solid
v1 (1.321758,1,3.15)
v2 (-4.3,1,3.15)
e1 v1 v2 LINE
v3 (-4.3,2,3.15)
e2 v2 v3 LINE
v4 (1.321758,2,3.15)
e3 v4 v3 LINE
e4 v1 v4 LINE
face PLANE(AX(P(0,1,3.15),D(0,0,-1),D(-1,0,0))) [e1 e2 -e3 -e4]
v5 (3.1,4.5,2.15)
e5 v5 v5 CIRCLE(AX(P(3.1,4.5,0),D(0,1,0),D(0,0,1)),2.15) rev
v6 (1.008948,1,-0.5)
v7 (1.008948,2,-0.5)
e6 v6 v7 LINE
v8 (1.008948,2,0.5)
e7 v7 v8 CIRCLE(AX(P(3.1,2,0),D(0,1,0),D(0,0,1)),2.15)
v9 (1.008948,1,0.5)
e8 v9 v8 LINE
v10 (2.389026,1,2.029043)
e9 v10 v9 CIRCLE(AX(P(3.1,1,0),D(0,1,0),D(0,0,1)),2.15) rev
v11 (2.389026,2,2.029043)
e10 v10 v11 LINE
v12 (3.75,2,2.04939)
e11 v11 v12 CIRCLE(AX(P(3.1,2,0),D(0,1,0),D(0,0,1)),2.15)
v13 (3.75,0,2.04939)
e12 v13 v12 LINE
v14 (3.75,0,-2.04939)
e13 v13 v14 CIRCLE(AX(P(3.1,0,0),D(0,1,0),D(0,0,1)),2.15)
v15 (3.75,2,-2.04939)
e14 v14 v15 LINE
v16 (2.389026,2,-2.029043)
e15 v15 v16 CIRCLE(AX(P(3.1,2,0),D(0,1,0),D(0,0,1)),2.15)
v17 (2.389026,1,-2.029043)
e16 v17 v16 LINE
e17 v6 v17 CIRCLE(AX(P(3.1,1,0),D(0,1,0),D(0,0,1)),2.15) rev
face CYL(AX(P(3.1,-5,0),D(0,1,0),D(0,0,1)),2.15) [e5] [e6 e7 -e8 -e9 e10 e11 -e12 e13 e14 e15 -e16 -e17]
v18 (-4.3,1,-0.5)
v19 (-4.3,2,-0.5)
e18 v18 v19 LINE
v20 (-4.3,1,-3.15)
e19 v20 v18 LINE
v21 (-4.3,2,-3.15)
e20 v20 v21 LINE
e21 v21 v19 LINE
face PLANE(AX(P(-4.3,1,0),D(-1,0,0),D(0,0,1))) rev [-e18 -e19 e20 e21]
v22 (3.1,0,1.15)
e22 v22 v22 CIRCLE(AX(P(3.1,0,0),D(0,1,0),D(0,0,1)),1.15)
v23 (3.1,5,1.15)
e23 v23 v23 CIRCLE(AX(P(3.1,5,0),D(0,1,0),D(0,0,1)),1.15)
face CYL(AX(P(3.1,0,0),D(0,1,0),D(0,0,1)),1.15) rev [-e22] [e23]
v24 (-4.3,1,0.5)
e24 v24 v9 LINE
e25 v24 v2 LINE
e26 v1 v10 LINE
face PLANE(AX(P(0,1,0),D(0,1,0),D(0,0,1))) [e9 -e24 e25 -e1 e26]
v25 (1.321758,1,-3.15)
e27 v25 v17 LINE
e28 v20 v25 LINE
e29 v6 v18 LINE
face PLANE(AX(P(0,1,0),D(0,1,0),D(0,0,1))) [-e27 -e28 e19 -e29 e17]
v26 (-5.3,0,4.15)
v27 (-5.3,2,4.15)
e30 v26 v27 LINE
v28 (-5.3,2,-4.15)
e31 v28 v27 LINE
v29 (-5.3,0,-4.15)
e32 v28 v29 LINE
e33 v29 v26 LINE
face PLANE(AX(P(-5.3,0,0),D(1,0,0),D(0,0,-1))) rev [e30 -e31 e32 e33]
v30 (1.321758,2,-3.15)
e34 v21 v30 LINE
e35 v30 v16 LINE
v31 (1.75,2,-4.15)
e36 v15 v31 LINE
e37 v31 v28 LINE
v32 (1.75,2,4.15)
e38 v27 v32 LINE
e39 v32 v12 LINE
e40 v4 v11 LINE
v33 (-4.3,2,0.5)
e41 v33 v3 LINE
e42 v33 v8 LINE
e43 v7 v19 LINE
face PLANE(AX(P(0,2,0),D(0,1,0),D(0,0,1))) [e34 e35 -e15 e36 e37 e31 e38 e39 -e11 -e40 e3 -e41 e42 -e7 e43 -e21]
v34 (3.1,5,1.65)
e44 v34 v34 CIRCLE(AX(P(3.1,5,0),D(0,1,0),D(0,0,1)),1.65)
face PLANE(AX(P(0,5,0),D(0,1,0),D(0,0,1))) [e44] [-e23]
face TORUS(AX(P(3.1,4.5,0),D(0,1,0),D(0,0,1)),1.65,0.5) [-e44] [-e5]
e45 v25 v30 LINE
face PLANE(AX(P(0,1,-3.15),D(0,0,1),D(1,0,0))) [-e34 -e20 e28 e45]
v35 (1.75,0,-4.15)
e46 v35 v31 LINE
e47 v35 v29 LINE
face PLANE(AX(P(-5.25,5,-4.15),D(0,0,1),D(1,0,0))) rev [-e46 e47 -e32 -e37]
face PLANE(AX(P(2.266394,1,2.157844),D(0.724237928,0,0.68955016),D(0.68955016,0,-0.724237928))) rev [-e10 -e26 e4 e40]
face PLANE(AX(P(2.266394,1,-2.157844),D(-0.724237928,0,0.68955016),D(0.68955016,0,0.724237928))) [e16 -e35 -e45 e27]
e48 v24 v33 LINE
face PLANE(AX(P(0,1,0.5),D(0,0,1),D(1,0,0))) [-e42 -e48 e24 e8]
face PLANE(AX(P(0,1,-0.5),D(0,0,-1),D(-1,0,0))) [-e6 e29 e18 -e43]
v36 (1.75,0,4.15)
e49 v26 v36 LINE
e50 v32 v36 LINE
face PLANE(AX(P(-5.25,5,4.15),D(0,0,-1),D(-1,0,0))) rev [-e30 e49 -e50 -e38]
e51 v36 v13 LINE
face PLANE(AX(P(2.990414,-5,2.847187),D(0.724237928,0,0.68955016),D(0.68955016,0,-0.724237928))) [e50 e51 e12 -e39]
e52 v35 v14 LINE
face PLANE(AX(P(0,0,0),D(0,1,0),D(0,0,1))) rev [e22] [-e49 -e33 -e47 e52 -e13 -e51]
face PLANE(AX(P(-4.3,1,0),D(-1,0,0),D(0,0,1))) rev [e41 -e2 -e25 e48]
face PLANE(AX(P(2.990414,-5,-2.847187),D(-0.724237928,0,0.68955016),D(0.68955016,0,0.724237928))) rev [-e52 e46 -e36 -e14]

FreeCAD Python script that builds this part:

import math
import FreeCAD as App
import Part
import Sketcher
Q = App.Units.Quantity


def edges_at(feature, points):
    """Names of the edges that pass closest to the given points."""
    edges = feature.Shape.Edges
    near = lambda p: min(range(len(edges)), key=lambda i: edges[i].distToShape(Part.Vertex(*p))[0])
    return sorted({f"Edge{near(p) + 1}" for p in points})


def add_polygon(sketch, points):
    """Adds a closed chain of lines whose ends are joined by coincident constraints."""
    first, n = sketch.GeometryCount, len(points)
    for a, b in zip(points, points[1:] + points[:1]):
        sketch.addGeometry(Part.LineSegment(App.Vector(*a, 0), App.Vector(*b, 0)), False)
    for i in range(n):
        sketch.addConstraint(Sketcher.Constraint("Coincident", first + i, 2, first + (i + 1) % n, 1))

doc = App.newDocument("Part")
body = doc.addObject("PartDesign::Body", "Body")

# Sketch on XZ plane
sketch1 = doc.addObject("Sketcher::SketchObject", "Sketch")
body.addObject(sketch1)
sketch1.AttachmentSupport = (doc.XZ_Plane, [""])
sketch1.MapMode = "FlatFace"
add_polygon(sketch1, [(-5, -4), (-5, 4), (5, 4), (5, -4)])  # lines 0-3
sketch1.addConstraint(Sketcher.Constraint("Vertical", 0))
sketch1.addConstraint(Sketcher.Constraint("Horizontal", 1))
sketch1.addConstraint(Sketcher.Constraint("Vertical", 2))
sketch1.addConstraint(Sketcher.Constraint("Horizontal", 3))
sketch1.addConstraint(Sketcher.Constraint("Symmetric", 0, 2, 2, 2, -1, 1))
sketch1.addConstraint(Sketcher.Constraint("DistanceX", 1, 1, 1, 2, Q("10.5 mm")))
sketch1.addConstraint(Sketcher.Constraint("DistanceY", 0, 1, 0, 2, Q("8.3 mm")))
pad1 = doc.addObject("PartDesign::Pad", "Pad")
body.addObject(pad1)
pad1.Profile = sketch1
pad1.Length = 5
pad1.Reversed = True

# Sketch on XZ plane
sketch2 = doc.addObject("Sketcher::SketchObject", "Sketch001")
body.addObject(sketch2)
sketch2.AttachmentSupport = (doc.XZ_Plane, [""])
sketch2.MapMode = "FlatFace"
sketch2.AttachmentOffset = App.Placement(App.Vector(0, 0, -5), App.Rotation())
sketch2.addGeometry(Part.LineSegment(App.Vector(1.8, -4.2, 0), App.Vector(3.8, -2, 0)), False)
sketch2.addGeometry(Part.ArcOfCircle(Part.Circle(App.Vector(3.1, 0, 0), App.Vector(0, 0, 1), 2.1), math.radians(-72), math.radians(0)), False)
sketch2.addGeometry(Part.LineSegment(App.Vector(5.2, 0, 0), App.Vector(5.2, -4.2, 0)), False)
sketch2.addGeometry(Part.LineSegment(App.Vector(5.2, -4.2, 0), App.Vector(1.8, -4.2, 0)), False)
sketch2.addGeometry(Part.LineSegment(App.Vector(3.8, 2, 0), App.Vector(1.8, 4.2, 0)), False)
sketch2.addGeometry(Part.LineSegment(App.Vector(1.8, 4.2, 0), App.Vector(5.2, 4.2, 0)), False)
sketch2.addGeometry(Part.LineSegment(App.Vector(5.2, 4.2, 0), App.Vector(5.2, 0, 0)), False)
sketch2.addGeometry(Part.ArcOfCircle(Part.Circle(App.Vector(3.1, 0, 0), App.Vector(0, 0, 1), 2.1), math.radians(0), math.radians(72)), False)
sketch2.addConstraint(Sketcher.Constraint("Coincident", 0, 2, 1, 1))
sketch2.addConstraint(Sketcher.Constraint("Tangent", 1, 2, 2, 1))
sketch2.addConstraint(Sketcher.Constraint("Coincident", 2, 2, 3, 1))
sketch2.addConstraint(Sketcher.Constraint("Coincident", 3, 2, 0, 1))
sketch2.addConstraint(Sketcher.Constraint("Coincident", 4, 2, 5, 1))
sketch2.addConstraint(Sketcher.Constraint("Coincident", 5, 2, 6, 1))
sketch2.addConstraint(Sketcher.Constraint("Tangent", 6, 2, 7, 1))
sketch2.addConstraint(Sketcher.Constraint("Coincident", 7, 2, 4, 1))
sketch2.addConstraint(Sketcher.Constraint("Vertical", 2))
sketch2.addConstraint(Sketcher.Constraint("Horizontal", 3))
sketch2.addConstraint(Sketcher.Constraint("Horizontal", 5))
sketch2.addConstraint(Sketcher.Constraint("Vertical", 6))
sketch2.addConstraint(Sketcher.Constraint("Coincident", 7, 3, 1, 3))
sketch2.addConstraint(Sketcher.Constraint("Equal", 1, 7))
sketch2.addConstraint(Sketcher.Constraint("Symmetric", 3, 2, 4, 2, -1))
sketch2.addConstraint(Sketcher.Constraint("Symmetric", 0, 2, 7, 2, -1))
sketch2.addConstraint(Sketcher.Constraint("Radius", 1, Q("2.15 mm")))
sketch2.addConstraint(Sketcher.Constraint("DistanceX", 3, 2, 3, 1, Q("3.5 mm")))
sketch2.addConstraint(Sketcher.Constraint("DistanceX", 3, 2, 0, 2, Q("2 mm")))
sketch2.addConstraint(Sketcher.Constraint("DistanceY", 2, 2, 2, 1, Q("4.15 mm")))
sketch2.addConstraint(Sketcher.Constraint("DistanceX", -1, 1, 1, 3, Q("3.1 mm")))
pocket1 = doc.addObject("PartDesign::Pocket", "Pocket")
body.addObject(pocket1)
pocket1.Profile = sketch2
pocket1.Length = 10
pocket1.Reversed = True

# Sketch on YZ plane
sketch3 = doc.addObject("Sketcher::SketchObject", "Sketch002")
body.addObject(sketch3)
sketch3.AttachmentSupport = (doc.YZ_Plane, [""])
sketch3.MapMode = "FlatFace"
sketch3.AttachmentOffset = App.Placement(App.Vector(0, 0, -5.25), App.Rotation())
add_polygon(sketch3, [(5, -4), (0, -4), (0, 4), (5, 4)])  # lines 0-3
sketch3.addConstraint(Sketcher.Constraint("Horizontal", 0))
sketch3.addConstraint(Sketcher.Constraint("Vertical", 1))
sketch3.addConstraint(Sketcher.Constraint("Horizontal", 2))
sketch3.addConstraint(Sketcher.Constraint("Vertical", 3))
sketch3.addConstraint(Sketcher.Constraint("Symmetric", 0, 2, 1, 2, -1, 1))
sketch3.addConstraint(Sketcher.Constraint("DistanceX", 0, 2, 0, 1, Q("5 mm")))
sketch3.addConstraint(Sketcher.Constraint("DistanceY", 1, 1, 1, 2, Q("8.3 mm")))
pad2 = doc.addObject("PartDesign::Pad", "Pad001")
body.addObject(pad2)
pad2.Profile = sketch3
pad2.Length = 0.05
pad2.Reversed = True

# Sketch on XZ plane
sketch4 = doc.addObject("Sketcher::SketchObject", "Sketch003")
body.addObject(sketch4)
sketch4.AttachmentSupport = (doc.XZ_Plane, [""])
sketch4.MapMode = "FlatFace"
sketch4.AttachmentOffset = App.Placement(App.Vector(0, 0, -5), App.Rotation())
sketch4.addGeometry(Part.ArcOfCircle(Part.Circle(App.Vector(3.1, 0, 0), App.Vector(0, 0, 1), 2.1), math.radians(72), math.radians(288)), False)
sketch4.addGeometry(Part.LineSegment(App.Vector(3.8, -2, 0), App.Vector(1.8, -4.2, 0)), False)
sketch4.addGeometry(Part.LineSegment(App.Vector(1.8, -4.2, 0), App.Vector(-5.3, -4.2, 0)), False)
sketch4.addGeometry(Part.LineSegment(App.Vector(-5.3, -4.2, 0), App.Vector(-5.3, 4.2, 0)), False)
sketch4.addGeometry(Part.LineSegment(App.Vector(-5.3, 4.2, 0), App.Vector(1.8, 4.2, 0)), False)
sketch4.addGeometry(Part.LineSegment(App.Vector(1.8, 4.2, 0), App.Vector(3.8, 2, 0)), False)
sketch4.addConstraint(Sketcher.Constraint("Coincident", 0, 2, 1, 1))
sketch4.addConstraint(Sketcher.Constraint("Coincident", 1, 2, 2, 1))
sketch4.addConstraint(Sketcher.Constraint("Coincident", 2, 2, 3, 1))
sketch4.addConstraint(Sketcher.Constraint("Coincident", 3, 2, 4, 1))
sketch4.addConstraint(Sketcher.Constraint("Coincident", 4, 2, 5, 1))
sketch4.addConstraint(Sketcher.Constraint("Coincident", 5, 2, 0, 1))
sketch4.addConstraint(Sketcher.Constraint("Horizontal", 2))
sketch4.addConstraint(Sketcher.Constraint("Vertical", 3))
sketch4.addConstraint(Sketcher.Constraint("Horizontal", 4))
sketch4.addConstraint(Sketcher.Constraint("Symmetric", 1, 2, 4, 2, -1))
sketch4.addConstraint(Sketcher.Constraint("Symmetric", 0, 2, 5, 2, -1))
sketch4.addConstraint(Sketcher.Constraint("Radius", 0, Q("2.15 mm")))
sketch4.addConstraint(Sketcher.Constraint("DistanceY", 3, 1, 3, 2, Q("8.3 mm")))
sketch4.addConstraint(Sketcher.Constraint("DistanceX", 1, 2, 0, 2, Q("2 mm")))
sketch4.addConstraint(Sketcher.Constraint("DistanceX", 2, 2, 2, 1, Q("7.05 mm")))
sketch4.addConstraint(Sketcher.Constraint("DistanceX", -1, 1, 0, 3, Q("3.1 mm")))
sketch4.addConstraint(Sketcher.Constraint("DistanceX", 2, 2, -1, 1, Q("5.3 mm")))
pocket2 = doc.addObject("PartDesign::Pocket", "Pocket001")
body.addObject(pocket2)
pocket2.Profile = sketch4
pocket2.Length = 3
pocket2.Reversed = True

# Sketch on XZ plane
sketch5 = doc.addObject("Sketcher::SketchObject", "Sketch004")
body.addObject(sketch5)
sketch5.AttachmentSupport = (doc.XZ_Plane, [""])
sketch5.MapMode = "FlatFace"
sketch5.AttachmentOffset = App.Placement(App.Vector(0, 0, -5), App.Rotation())
sketch5.addGeometry(Part.Circle(App.Vector(3.1, 0, 0), App.Vector(0, 0, 1), 1.1), False)
sketch5.addConstraint(Sketcher.Constraint("PointOnObject", 0, 3, -1))
sketch5.addConstraint(Sketcher.Constraint("Diameter", 0, Q("2.3 mm")))
sketch5.addConstraint(Sketcher.Constraint("DistanceX", -1, 1, 0, 3, Q("3.1 mm")))
pocket3 = doc.addObject("PartDesign::Pocket", "Pocket002")
body.addObject(pocket3)
pocket3.Profile = sketch5
pocket3.Length = 5
pocket3.Reversed = True

# Sketch on XZ plane
sketch6 = doc.addObject("Sketcher::SketchObject", "Sketch005")
body.addObject(sketch6)
sketch6.AttachmentSupport = (doc.XZ_Plane, [""])
sketch6.MapMode = "FlatFace"
sketch6.AttachmentOffset = App.Placement(App.Vector(0, 0, -2), App.Rotation())
sketch6.addGeometry(Part.LineSegment(App.Vector(1.3, -3.1, 0), App.Vector(-4.3, -3.1, 0)), False)
sketch6.addGeometry(Part.LineSegment(App.Vector(-4.3, -3.1, 0), App.Vector(-4.3, -0.5, 0)), False)
sketch6.addGeometry(Part.LineSegment(App.Vector(-4.3, -0.5, 0), App.Vector(1, -0.5, 0)), False)
sketch6.addGeometry(Part.ArcOfCircle(Part.Circle(App.Vector(3.1, 0, 0), App.Vector(0, 0, 1), 2.1), math.radians(-167), math.radians(-109)), False)
sketch6.addGeometry(Part.LineSegment(App.Vector(2.4, -2, 0), App.Vector(1.3, -3.1, 0)), False)
sketch6.addGeometry(Part.LineSegment(App.Vector(-4.3, 0.5, 0), App.Vector(-4.3, 3.1, 0)), False)
sketch6.addGeometry(Part.LineSegment(App.Vector(-4.3, 3.1, 0), App.Vector(1.3, 3.1, 0)), False)
sketch6.addGeometry(Part.LineSegment(App.Vector(1.3, 3.1, 0), App.Vector(2.4, 2, 0)), False)
sketch6.addGeometry(Part.ArcOfCircle(Part.Circle(App.Vector(3.1, 0, 0), App.Vector(0, 0, 1), 2.1), math.radians(109), math.radians(167)), False)
sketch6.addGeometry(Part.LineSegment(App.Vector(1, 0.5, 0), App.Vector(-4.3, 0.5, 0)), False)
sketch6.addConstraint(Sketcher.Constraint("Coincident", 0, 2, 1, 1))
sketch6.addConstraint(Sketcher.Constraint("Coincident", 1, 2, 2, 1))
sketch6.addConstraint(Sketcher.Constraint("Coincident", 2, 2, 3, 1))
sketch6.addConstraint(Sketcher.Constraint("Coincident", 3, 2, 4, 1))
sketch6.addConstraint(Sketcher.Constraint("Coincident", 4, 2, 0, 1))
sketch6.addConstraint(Sketcher.Constraint("Coincident", 5, 2, 6, 1))
sketch6.addConstraint(Sketcher.Constraint("Coincident", 6, 2, 7, 1))
sketch6.addConstraint(Sketcher.Constraint("Coincident", 7, 2, 8, 1))
sketch6.addConstraint(Sketcher.Constraint("Coincident", 8, 2, 9, 1))
sketch6.addConstraint(Sketcher.Constraint("Coincident", 9, 2, 5, 1))
sketch6.addConstraint(Sketcher.Constraint("Horizontal", 0))
sketch6.addConstraint(Sketcher.Constraint("Vertical", 1))
sketch6.addConstraint(Sketcher.Constraint("Horizontal", 2))
sketch6.addConstraint(Sketcher.Constraint("Vertical", 5))
sketch6.addConstraint(Sketcher.Constraint("Horizontal", 6))
sketch6.addConstraint(Sketcher.Constraint("Horizontal", 9))
sketch6.addConstraint(Sketcher.Constraint("Coincident", 8, 3, 3, 3))
sketch6.addConstraint(Sketcher.Constraint("Equal", 3, 8))
sketch6.addConstraint(Sketcher.Constraint("Symmetric", 0, 2, 5, 2, -1))
sketch6.addConstraint(Sketcher.Constraint("Symmetric", 3, 2, 7, 2, -1))
sketch6.addConstraint(Sketcher.Constraint("Vertical", 4, 2, 6, 2))
sketch6.addConstraint(Sketcher.Constraint("Vertical", 2, 2, 8, 2))
sketch6.addConstraint(Sketcher.Constraint("Radius", 3, Q("2.15 mm")))
sketch6.addConstraint(Sketcher.Constraint("DistanceY", 2, 2, 8, 2, Q("1 mm")))
sketch6.addConstraint(Sketcher.Constraint("DistanceY", 1, 1, 1, 2, Q("2.65 mm")))
sketch6.addConstraint(Sketcher.Constraint("DistanceX", -1, 1, 3, 3, Q("3.1 mm")))
sketch6.addConstraint(Sketcher.Constraint("DistanceX", 0, 2, -1, 1, Q("4.3 mm")))
sketch6.addConstraint(Sketcher.Constraint("DistanceX", 0, 2, 0, 1, Q("5.621758 mm")))
sketch6.addConstraint(Sketcher.Constraint("DistanceX", 2, 2, 3, 2, Q("1.380079 mm")))
pocket4 = doc.addObject("PartDesign::Pocket", "Pocket003")
body.addObject(pocket4)
pocket4.Profile = sketch6
pocket4.Length = 1
pocket4.Reversed = True
doc.recompute()

fillet = doc.addObject("PartDesign::Fillet", "Fillet")
body.addObject(fillet)
fillet.Base = (pocket4, edges_at(pocket4, [(0.95, 5, 0)]))
fillet.Radius = 0.5

doc.recompute()
